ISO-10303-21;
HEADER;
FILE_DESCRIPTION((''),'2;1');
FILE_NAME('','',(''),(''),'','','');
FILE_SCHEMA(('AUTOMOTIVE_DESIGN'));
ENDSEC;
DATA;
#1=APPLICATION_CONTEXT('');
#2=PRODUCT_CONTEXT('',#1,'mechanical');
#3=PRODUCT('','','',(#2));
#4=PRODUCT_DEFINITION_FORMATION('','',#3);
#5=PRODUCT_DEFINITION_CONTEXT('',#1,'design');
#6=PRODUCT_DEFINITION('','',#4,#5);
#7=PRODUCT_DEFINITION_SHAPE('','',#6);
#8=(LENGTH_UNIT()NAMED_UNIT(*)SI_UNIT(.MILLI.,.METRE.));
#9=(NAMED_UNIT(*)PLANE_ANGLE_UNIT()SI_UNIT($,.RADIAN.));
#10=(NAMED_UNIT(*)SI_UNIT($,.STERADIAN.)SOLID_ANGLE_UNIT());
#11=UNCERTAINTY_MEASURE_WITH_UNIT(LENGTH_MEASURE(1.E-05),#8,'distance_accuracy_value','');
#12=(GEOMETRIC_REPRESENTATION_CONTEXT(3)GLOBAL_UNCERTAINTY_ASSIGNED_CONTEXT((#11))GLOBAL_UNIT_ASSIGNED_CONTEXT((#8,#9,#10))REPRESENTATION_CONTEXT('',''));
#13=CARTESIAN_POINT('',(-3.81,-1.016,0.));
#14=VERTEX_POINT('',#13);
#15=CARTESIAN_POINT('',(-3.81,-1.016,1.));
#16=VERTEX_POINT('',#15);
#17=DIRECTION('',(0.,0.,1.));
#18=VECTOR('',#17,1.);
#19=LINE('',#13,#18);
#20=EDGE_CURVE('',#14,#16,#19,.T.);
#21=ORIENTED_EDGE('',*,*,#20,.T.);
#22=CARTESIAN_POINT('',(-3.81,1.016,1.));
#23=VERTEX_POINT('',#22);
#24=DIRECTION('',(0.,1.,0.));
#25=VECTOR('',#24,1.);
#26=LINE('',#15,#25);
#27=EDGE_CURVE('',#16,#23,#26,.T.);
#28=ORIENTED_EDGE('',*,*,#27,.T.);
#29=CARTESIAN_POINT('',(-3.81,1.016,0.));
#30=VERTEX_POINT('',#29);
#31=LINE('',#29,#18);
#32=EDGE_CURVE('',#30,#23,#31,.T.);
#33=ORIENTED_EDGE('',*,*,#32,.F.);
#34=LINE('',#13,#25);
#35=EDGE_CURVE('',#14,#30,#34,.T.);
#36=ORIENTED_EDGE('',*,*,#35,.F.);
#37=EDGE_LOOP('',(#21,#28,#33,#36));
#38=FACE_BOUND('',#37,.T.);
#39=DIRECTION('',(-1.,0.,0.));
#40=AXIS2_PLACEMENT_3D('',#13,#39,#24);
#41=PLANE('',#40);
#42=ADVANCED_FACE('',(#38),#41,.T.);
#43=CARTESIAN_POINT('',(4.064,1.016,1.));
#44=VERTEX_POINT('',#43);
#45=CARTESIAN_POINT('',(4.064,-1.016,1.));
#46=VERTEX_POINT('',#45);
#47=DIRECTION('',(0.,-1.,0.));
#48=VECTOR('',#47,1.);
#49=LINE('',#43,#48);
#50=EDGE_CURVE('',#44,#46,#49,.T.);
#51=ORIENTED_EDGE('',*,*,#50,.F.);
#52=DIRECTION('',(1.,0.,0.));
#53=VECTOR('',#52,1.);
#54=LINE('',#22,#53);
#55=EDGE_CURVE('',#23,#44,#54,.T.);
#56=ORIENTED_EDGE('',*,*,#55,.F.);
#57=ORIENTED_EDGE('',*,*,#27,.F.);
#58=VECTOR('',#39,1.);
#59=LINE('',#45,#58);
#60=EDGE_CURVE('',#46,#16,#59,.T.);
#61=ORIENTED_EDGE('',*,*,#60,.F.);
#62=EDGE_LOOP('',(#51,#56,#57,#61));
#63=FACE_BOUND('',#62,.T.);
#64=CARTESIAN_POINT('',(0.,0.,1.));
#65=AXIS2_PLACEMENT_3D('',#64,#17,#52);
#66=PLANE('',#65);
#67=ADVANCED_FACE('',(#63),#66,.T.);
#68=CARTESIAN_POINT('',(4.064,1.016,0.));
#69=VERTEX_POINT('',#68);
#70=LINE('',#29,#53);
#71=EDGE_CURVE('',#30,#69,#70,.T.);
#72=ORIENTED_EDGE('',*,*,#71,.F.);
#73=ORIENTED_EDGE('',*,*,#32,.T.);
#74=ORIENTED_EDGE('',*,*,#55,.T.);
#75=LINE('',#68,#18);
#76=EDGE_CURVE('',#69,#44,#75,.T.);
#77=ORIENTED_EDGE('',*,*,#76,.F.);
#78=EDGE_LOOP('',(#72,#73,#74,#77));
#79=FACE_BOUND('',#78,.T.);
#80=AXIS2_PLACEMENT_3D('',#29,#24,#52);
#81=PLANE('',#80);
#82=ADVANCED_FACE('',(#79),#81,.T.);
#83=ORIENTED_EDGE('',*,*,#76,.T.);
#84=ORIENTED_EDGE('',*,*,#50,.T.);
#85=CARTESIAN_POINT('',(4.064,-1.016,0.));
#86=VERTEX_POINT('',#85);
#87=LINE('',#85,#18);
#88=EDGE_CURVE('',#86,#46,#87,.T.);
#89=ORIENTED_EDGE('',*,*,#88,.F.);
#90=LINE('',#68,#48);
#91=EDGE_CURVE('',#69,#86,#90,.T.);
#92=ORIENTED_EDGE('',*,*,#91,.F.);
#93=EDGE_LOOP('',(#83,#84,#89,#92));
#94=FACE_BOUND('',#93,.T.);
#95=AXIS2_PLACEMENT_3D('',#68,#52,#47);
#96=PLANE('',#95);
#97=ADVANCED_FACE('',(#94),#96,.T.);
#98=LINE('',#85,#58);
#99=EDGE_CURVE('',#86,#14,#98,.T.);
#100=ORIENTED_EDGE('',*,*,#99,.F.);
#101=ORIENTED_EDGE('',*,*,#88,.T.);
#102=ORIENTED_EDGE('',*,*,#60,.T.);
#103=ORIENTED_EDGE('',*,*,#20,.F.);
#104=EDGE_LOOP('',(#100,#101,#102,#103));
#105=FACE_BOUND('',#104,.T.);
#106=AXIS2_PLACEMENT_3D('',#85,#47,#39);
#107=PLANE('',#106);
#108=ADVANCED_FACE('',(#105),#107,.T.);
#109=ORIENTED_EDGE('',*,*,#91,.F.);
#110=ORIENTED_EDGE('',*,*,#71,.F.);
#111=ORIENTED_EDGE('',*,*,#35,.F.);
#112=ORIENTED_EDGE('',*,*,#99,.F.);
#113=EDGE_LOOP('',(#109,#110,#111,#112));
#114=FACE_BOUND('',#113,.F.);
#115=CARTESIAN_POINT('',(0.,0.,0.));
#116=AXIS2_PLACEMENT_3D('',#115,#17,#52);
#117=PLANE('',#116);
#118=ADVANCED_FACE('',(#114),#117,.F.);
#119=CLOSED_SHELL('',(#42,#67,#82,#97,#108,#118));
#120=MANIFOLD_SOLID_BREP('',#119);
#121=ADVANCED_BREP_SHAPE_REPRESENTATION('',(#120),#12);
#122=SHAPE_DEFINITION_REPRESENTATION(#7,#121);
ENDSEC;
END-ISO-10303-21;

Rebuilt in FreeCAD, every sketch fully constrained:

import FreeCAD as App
import Part
import Sketcher

V = App.Vector
Q = App.Units.Quantity


def add_polygon(sketch, points):
    """Adds a closed chain of lines whose ends are joined by coincident constraints."""
    first, n = sketch.GeometryCount, len(points)
    for a, b in zip(points, points[1:] + points[:1]):
        sketch.addGeometry(Part.LineSegment(App.Vector(*a, 0), App.Vector(*b, 0)), False)
    for i in range(n):
        sketch.addConstraint(Sketcher.Constraint("Coincident", first + i, 2, first + (i + 1) % n, 1))

doc = App.newDocument("Part")
body = doc.addObject("PartDesign::Body", "Body")

sketch1 = body.newObject("Sketcher::SketchObject", "Sketch")
sketch1.AttachmentSupport = (doc.getObject("XY_Plane"), [""])
sketch1.MapMode = "FlatFace"
add_polygon(sketch1, [(4.1, 1), (-3.8, 1), (-3.8, -1), (4.1, -1)])
sketch1.addConstraint(Sketcher.Constraint("Horizontal", 0))
sketch1.addConstraint(Sketcher.Constraint("Vertical", 1))
sketch1.addConstraint(Sketcher.Constraint("Horizontal", 2))
sketch1.addConstraint(Sketcher.Constraint("Vertical", 3))
sketch1.addConstraint(Sketcher.Constraint("DistanceX", 0, 2, 0, 1, Q("0.31 in")))
sketch1.addConstraint(Sketcher.Constraint("DistanceY", 1, 2, 1, 1, Q("0.08 in")))
sketch1.addConstraint(Sketcher.Constraint("DistanceX", 0, 2, -1, 1, Q("0.15 in")))
sketch1.addConstraint(Sketcher.Constraint("DistanceY", -1, 1, 0, 2, Q("0.04 in")))
pad1 = body.newObject("PartDesign::Pad", "Pad")
pad1.Profile = sketch1
pad1.Length = 1

doc.recompute()
